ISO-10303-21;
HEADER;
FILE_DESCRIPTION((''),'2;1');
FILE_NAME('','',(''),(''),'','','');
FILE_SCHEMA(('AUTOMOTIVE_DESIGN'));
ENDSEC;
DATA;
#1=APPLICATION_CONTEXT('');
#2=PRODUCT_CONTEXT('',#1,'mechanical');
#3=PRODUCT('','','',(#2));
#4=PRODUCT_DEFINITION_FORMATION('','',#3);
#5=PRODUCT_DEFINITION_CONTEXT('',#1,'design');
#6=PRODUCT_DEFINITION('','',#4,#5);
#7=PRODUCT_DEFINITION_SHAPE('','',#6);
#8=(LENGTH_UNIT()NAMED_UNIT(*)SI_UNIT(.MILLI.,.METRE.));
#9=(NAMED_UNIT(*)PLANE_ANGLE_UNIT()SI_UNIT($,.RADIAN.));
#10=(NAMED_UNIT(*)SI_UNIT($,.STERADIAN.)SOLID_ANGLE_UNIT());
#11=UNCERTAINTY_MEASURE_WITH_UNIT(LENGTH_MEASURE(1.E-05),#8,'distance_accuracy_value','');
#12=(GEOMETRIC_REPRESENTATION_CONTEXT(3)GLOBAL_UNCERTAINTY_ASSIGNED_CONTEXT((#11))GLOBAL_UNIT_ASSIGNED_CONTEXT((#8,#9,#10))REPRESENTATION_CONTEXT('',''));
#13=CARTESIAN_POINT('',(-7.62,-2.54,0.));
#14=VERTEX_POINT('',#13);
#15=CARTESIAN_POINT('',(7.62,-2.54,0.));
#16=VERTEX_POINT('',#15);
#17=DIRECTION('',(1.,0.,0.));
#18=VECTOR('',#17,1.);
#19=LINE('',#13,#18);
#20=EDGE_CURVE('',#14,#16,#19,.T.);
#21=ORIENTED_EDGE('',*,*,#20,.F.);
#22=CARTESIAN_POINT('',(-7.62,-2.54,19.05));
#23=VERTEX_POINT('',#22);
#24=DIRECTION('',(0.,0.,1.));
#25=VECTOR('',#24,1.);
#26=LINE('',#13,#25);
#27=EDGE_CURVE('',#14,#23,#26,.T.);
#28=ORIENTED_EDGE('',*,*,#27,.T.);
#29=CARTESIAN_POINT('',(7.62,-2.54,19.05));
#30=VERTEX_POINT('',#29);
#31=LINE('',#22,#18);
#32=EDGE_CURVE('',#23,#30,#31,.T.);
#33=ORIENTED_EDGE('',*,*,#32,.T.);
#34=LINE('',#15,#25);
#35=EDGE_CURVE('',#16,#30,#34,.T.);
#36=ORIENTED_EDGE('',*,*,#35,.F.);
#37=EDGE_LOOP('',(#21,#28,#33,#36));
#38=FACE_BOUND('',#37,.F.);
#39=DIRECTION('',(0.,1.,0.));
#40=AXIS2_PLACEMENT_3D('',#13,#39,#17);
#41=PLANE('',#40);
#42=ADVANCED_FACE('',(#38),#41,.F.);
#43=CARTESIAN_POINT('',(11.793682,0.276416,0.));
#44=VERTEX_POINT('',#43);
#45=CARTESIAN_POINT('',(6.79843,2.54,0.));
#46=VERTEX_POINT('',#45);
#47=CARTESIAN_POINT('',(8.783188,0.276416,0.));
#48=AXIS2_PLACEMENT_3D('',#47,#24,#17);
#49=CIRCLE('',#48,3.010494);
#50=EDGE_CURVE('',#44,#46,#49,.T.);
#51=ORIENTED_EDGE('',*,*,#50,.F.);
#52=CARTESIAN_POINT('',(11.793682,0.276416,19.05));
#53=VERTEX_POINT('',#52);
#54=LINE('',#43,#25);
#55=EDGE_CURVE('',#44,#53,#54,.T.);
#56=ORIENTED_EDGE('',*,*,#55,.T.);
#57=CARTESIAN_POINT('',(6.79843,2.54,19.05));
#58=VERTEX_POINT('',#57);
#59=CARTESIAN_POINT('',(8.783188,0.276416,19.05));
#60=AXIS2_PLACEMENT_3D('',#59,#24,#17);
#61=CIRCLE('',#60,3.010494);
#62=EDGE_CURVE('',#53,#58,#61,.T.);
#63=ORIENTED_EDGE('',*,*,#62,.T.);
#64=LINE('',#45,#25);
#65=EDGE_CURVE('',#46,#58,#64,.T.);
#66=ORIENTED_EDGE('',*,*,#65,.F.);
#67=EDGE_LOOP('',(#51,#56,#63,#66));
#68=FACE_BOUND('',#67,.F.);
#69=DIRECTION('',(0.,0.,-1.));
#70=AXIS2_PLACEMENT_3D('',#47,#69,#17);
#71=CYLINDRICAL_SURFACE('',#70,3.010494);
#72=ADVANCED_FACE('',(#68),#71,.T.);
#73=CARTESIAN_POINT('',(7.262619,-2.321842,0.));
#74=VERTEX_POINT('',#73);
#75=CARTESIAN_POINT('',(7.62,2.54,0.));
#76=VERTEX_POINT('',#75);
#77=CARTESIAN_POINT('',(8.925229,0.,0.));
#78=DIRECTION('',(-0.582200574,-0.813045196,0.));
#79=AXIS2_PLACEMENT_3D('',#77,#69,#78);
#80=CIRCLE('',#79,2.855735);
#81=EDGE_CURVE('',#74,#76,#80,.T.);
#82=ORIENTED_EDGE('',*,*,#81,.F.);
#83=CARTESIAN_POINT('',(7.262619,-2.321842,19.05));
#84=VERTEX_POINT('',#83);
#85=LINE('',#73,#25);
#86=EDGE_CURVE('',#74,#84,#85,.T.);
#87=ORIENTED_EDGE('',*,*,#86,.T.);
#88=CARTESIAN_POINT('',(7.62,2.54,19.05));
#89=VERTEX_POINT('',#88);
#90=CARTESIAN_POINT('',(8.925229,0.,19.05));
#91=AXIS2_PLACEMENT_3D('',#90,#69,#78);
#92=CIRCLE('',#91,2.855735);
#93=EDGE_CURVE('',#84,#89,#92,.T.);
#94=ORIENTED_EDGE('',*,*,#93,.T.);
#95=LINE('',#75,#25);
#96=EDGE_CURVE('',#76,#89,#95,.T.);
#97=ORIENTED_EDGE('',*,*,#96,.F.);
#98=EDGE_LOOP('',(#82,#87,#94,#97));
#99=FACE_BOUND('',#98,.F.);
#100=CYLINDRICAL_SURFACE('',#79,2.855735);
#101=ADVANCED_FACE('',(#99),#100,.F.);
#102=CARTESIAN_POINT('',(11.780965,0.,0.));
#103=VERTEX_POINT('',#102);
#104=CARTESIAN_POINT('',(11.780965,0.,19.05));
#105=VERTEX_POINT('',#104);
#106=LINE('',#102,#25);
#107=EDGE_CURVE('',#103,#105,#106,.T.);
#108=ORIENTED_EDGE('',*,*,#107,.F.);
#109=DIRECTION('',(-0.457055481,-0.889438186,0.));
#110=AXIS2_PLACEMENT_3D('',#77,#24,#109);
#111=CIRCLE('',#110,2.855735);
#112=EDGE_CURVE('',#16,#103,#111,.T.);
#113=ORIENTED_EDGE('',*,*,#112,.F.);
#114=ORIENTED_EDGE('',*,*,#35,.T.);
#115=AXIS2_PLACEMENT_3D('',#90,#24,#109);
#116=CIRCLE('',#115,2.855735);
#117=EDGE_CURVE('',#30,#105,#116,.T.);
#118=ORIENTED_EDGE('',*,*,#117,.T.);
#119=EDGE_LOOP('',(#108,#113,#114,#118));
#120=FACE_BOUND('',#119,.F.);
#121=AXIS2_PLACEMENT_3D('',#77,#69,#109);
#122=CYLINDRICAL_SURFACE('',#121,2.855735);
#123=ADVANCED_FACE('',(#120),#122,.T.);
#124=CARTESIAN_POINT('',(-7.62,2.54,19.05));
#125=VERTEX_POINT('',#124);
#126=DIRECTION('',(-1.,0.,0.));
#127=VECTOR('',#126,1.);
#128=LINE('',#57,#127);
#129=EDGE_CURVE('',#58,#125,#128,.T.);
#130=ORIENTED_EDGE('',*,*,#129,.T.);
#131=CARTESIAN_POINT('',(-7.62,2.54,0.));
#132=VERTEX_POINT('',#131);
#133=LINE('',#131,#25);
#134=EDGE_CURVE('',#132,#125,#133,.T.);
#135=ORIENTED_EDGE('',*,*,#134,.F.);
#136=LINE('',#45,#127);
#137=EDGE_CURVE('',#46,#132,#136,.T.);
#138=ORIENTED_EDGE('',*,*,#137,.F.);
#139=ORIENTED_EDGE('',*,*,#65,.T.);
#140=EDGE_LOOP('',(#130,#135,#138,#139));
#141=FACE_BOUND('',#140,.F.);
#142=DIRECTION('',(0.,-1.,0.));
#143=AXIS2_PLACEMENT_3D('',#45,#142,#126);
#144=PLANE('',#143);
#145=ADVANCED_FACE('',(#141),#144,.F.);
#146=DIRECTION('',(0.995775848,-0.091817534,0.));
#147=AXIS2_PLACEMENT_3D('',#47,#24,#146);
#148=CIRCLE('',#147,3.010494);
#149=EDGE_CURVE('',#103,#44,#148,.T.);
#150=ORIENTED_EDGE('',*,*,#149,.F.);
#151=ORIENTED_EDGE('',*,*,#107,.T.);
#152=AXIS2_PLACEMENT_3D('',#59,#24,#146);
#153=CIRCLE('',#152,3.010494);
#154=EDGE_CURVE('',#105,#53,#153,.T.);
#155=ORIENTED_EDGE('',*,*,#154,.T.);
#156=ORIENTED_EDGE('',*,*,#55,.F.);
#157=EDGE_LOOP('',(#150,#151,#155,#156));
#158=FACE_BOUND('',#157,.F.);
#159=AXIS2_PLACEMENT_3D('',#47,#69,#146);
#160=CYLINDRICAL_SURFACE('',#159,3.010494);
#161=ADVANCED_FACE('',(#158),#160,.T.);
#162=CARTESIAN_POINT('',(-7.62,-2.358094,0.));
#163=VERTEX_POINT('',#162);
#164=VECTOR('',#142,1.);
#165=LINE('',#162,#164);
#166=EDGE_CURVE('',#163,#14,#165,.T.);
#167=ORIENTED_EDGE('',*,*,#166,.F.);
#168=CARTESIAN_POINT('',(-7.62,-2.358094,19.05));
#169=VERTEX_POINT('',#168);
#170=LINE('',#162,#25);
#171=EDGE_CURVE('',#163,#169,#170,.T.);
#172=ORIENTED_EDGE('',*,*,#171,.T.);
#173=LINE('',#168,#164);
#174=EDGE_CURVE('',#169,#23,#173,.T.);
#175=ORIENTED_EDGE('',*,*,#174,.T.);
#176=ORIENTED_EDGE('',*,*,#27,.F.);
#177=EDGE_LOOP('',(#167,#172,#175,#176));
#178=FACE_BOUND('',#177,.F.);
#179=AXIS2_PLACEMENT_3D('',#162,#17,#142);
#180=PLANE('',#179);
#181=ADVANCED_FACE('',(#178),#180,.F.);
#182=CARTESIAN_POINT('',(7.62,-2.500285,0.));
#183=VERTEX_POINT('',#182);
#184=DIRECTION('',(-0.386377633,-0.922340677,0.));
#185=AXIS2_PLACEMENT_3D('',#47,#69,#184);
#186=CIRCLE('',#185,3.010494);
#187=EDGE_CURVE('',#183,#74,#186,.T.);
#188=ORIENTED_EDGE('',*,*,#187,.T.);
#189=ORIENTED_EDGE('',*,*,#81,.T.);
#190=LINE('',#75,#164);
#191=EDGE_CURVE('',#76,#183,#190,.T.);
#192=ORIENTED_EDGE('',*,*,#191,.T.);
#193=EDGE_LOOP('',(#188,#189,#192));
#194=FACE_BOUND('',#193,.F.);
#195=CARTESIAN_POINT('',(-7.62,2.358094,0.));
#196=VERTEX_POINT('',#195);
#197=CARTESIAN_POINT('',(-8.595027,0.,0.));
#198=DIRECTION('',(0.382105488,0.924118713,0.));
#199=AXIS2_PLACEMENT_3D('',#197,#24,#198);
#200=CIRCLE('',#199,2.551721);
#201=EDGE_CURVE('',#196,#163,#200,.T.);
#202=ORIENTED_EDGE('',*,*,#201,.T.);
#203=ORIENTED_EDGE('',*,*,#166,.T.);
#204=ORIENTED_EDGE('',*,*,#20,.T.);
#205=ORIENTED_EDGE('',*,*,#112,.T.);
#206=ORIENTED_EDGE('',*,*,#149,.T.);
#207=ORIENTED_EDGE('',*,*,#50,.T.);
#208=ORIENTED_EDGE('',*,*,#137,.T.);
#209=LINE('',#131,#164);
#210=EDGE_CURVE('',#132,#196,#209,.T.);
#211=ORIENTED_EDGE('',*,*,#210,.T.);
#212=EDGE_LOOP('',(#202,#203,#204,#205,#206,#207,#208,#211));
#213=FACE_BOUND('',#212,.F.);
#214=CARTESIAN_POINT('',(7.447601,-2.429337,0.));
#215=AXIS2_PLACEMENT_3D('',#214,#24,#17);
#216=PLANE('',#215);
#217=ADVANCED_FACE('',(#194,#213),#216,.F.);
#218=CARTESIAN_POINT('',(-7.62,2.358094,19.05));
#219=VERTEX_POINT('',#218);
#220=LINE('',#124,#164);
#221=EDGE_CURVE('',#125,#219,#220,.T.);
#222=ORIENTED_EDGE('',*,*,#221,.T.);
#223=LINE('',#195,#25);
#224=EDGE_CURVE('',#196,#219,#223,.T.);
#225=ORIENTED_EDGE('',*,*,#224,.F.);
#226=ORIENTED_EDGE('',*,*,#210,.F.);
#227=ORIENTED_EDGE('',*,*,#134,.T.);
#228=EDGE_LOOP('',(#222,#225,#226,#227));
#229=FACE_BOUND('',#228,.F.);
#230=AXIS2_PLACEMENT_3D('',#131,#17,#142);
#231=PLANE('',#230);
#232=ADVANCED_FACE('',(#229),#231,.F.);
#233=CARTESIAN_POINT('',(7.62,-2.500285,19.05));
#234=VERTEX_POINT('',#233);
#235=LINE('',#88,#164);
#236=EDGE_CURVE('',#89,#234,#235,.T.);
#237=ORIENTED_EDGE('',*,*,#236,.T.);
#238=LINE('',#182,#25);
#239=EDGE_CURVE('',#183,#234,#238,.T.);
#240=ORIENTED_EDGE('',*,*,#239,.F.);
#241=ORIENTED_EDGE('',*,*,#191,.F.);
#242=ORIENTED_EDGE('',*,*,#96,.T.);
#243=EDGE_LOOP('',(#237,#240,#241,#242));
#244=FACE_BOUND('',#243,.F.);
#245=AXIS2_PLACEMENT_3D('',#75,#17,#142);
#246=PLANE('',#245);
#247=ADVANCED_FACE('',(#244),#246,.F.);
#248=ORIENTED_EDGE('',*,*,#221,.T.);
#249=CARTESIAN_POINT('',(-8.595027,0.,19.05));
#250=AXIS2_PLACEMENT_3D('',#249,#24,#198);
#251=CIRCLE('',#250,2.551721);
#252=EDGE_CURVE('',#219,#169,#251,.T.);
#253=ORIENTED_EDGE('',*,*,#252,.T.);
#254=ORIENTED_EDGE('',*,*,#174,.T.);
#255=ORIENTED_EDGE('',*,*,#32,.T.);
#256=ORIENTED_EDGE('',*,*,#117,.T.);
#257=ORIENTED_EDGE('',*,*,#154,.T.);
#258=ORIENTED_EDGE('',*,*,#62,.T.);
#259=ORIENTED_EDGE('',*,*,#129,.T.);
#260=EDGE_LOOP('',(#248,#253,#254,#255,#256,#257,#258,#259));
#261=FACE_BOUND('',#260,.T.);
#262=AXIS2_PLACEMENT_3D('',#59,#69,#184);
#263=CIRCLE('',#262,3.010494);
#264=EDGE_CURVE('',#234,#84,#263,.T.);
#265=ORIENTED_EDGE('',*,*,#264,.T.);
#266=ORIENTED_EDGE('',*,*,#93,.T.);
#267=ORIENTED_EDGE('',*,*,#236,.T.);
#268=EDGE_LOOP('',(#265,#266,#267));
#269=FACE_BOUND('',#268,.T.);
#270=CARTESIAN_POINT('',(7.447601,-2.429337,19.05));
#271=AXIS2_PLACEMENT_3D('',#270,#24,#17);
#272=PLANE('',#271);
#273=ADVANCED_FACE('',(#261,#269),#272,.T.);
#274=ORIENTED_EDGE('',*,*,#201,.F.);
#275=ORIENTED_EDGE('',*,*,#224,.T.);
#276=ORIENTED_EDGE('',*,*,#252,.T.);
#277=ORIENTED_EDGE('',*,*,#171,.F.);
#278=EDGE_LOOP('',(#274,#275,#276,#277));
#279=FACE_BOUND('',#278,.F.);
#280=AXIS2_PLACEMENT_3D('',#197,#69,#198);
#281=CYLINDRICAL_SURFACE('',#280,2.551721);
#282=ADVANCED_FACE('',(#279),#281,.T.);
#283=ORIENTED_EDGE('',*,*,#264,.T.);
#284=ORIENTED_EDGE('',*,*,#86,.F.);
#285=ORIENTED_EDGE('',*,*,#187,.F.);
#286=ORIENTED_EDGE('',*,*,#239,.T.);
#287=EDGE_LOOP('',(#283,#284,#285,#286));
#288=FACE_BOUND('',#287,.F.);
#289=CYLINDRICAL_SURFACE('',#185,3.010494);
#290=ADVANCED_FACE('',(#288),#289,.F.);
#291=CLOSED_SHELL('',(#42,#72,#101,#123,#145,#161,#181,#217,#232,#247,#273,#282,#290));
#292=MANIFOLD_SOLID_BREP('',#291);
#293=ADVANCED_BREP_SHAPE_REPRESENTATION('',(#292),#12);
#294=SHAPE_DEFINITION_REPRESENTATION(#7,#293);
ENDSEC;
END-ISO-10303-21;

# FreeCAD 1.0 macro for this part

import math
import FreeCAD as App
import Part
import Sketcher
Q = App.Units.Quantity

doc = App.newDocument("Part")
body = doc.addObject("PartDesign::Body", "Body")

sketch1 = body.newObject("Sketcher::SketchObject", "Sketch")
sketch1.AttachmentSupport = (doc.getObject("XY_Plane"), [""])
sketch1.MapMode = "FlatFace"
sketch1.addGeometry(Part.ArcOfCircle(Part.Circle(App.Vector(8.78, 0.28, 0), App.Vector(0, 0, 1), 3.01), math.radians(-5.27), math.radians(0)), False)
sketch1.addGeometry(Part.ArcOfCircle(Part.Circle(App.Vector(8.78, 0.28, 0), App.Vector(0, 0, 1), 3.01), math.radians(0), math.radians(131)), False)
sketch1.addGeometry(Part.LineSegment(App.Vector(6.8, 2.54, 0), App.Vector(-7.62, 2.54, 0)), False)
sketch1.addGeometry(Part.LineSegment(App.Vector(-7.62, 2.54, 0), App.Vector(-7.62, 2.36, 0)), False)
sketch1.addGeometry(Part.ArcOfCircle(Part.Circle(App.Vector(-8.6, 0, 0), App.Vector(0, 0, 1), 2.55), math.radians(68), math.radians(292)), False)
sketch1.addGeometry(Part.LineSegment(App.Vector(-7.62, -2.36, 0), App.Vector(-7.62, -2.54, 0)), False)
sketch1.addGeometry(Part.LineSegment(App.Vector(-7.62, -2.54, 0), App.Vector(7.62, -2.54, 0)), False)
sketch1.addGeometry(Part.ArcOfCircle(Part.Circle(App.Vector(8.93, 0, 0), App.Vector(0, 0, 1), 2.86), math.radians(-117), math.radians(0)), False)
sketch1.addGeometry(Part.ArcOfCircle(Part.Circle(App.Vector(8.78, 0.28, 0), App.Vector(0, 0, 1), 3.01), math.radians(-120.34), math.radians(-112.73)), False)
sketch1.addGeometry(Part.ArcOfCircle(Part.Circle(App.Vector(8.93, 0, 0), App.Vector(0, 0, 1), 2.86), math.radians(117), math.radians(234)), False)
sketch1.addGeometry(Part.LineSegment(App.Vector(7.62, 2.54, 0), App.Vector(7.62, -2.5, 0)), False)
sketch1.addConstraint(Sketcher.Constraint("Tangent", 0, 2, 1, 1))
sketch1.addConstraint(Sketcher.Constraint("Coincident", 1, 2, 2, 1))
sketch1.addConstraint(Sketcher.Constraint("Coincident", 2, 2, 3, 1))
sketch1.addConstraint(Sketcher.Constraint("Coincident", 3, 2, 4, 1))
sketch1.addConstraint(Sketcher.Constraint("Coincident", 4, 2, 5, 1))
sketch1.addConstraint(Sketcher.Constraint("Coincident", 5, 2, 6, 1))
sketch1.addConstraint(Sketcher.Constraint("Coincident", 6, 2, 7, 1))
sketch1.addConstraint(Sketcher.Constraint("Coincident", 7, 2, 0, 1))
sketch1.addConstraint(Sketcher.Constraint("Coincident", 8, 1, 9, 2))
sketch1.addConstraint(Sketcher.Constraint("Coincident", 9, 1, 10, 1))
sketch1.addConstraint(Sketcher.Constraint("Coincident", 10, 2, 8, 2))
sketch1.addConstraint(Sketcher.Constraint("Horizontal", 2))
sketch1.addConstraint(Sketcher.Constraint("Vertical", 3))
sketch1.addConstraint(Sketcher.Constraint("Vertical", 5))
sketch1.addConstraint(Sketcher.Constraint("Horizontal", 6))
sketch1.addConstraint(Sketcher.Constraint("Vertical", 10))
sketch1.addConstraint(Sketcher.Constraint("Coincident", 8, 3, 0, 3))
sketch1.addConstraint(Sketcher.Constraint("Coincident", 9, 3, 7, 3))
sketch1.addConstraint(Sketcher.Constraint("Equal", 0, 1))
sketch1.addConstraint(Sketcher.Constraint("Equal", 1, 8))
sketch1.addConstraint(Sketcher.Constraint("Equal", 7, 9))
sketch1.addConstraint(Sketcher.Constraint("Symmetric", 2, 2, 6, 2, -1, 1))
sketch1.addConstraint(Sketcher.Constraint("Symmetric", 5, 2, 9, 1, -1, 1))
sketch1.addConstraint(Sketcher.Constraint("Symmetric", 3, 2, 4, 2, -1))
sketch1.addConstraint(Sketcher.Constraint("PointOnObject", 7, 2, -1))
sketch1.addConstraint(Sketcher.Constraint("Horizontal", 8, 3, 0, 2))
sketch1.addConstraint(Sketcher.Constraint("DistanceX", 6, 1, 6, 2, Q("0.6 in")))
sketch1.addConstraint(Sketcher.Constraint("DistanceY", -1, 1, 1, 2, Q("0.1 in")))
sketch1.addConstraint(Sketcher.Constraint("Radius", 4, Q("2.551721 mm")))
sketch1.addConstraint(Sketcher.Constraint("Radius", 0, Q("3.010494 mm")))
sketch1.addConstraint(Sketcher.Constraint("Radius", 7, Q("2.855735 mm")))
sketch1.addConstraint(Sketcher.Constraint("DistanceX", 2, 2, 2, 1, Q("14.41843 mm")))
sketch1.addConstraint(Sketcher.Constraint("DistanceY", 3, 2, 3, 1, Q("0.181906 mm")))
pad1 = body.newObject("PartDesign::Pad", "Pad")
pad1.Profile = sketch1
pad1.Length = Q("0.75 in")

doc.recompute()
